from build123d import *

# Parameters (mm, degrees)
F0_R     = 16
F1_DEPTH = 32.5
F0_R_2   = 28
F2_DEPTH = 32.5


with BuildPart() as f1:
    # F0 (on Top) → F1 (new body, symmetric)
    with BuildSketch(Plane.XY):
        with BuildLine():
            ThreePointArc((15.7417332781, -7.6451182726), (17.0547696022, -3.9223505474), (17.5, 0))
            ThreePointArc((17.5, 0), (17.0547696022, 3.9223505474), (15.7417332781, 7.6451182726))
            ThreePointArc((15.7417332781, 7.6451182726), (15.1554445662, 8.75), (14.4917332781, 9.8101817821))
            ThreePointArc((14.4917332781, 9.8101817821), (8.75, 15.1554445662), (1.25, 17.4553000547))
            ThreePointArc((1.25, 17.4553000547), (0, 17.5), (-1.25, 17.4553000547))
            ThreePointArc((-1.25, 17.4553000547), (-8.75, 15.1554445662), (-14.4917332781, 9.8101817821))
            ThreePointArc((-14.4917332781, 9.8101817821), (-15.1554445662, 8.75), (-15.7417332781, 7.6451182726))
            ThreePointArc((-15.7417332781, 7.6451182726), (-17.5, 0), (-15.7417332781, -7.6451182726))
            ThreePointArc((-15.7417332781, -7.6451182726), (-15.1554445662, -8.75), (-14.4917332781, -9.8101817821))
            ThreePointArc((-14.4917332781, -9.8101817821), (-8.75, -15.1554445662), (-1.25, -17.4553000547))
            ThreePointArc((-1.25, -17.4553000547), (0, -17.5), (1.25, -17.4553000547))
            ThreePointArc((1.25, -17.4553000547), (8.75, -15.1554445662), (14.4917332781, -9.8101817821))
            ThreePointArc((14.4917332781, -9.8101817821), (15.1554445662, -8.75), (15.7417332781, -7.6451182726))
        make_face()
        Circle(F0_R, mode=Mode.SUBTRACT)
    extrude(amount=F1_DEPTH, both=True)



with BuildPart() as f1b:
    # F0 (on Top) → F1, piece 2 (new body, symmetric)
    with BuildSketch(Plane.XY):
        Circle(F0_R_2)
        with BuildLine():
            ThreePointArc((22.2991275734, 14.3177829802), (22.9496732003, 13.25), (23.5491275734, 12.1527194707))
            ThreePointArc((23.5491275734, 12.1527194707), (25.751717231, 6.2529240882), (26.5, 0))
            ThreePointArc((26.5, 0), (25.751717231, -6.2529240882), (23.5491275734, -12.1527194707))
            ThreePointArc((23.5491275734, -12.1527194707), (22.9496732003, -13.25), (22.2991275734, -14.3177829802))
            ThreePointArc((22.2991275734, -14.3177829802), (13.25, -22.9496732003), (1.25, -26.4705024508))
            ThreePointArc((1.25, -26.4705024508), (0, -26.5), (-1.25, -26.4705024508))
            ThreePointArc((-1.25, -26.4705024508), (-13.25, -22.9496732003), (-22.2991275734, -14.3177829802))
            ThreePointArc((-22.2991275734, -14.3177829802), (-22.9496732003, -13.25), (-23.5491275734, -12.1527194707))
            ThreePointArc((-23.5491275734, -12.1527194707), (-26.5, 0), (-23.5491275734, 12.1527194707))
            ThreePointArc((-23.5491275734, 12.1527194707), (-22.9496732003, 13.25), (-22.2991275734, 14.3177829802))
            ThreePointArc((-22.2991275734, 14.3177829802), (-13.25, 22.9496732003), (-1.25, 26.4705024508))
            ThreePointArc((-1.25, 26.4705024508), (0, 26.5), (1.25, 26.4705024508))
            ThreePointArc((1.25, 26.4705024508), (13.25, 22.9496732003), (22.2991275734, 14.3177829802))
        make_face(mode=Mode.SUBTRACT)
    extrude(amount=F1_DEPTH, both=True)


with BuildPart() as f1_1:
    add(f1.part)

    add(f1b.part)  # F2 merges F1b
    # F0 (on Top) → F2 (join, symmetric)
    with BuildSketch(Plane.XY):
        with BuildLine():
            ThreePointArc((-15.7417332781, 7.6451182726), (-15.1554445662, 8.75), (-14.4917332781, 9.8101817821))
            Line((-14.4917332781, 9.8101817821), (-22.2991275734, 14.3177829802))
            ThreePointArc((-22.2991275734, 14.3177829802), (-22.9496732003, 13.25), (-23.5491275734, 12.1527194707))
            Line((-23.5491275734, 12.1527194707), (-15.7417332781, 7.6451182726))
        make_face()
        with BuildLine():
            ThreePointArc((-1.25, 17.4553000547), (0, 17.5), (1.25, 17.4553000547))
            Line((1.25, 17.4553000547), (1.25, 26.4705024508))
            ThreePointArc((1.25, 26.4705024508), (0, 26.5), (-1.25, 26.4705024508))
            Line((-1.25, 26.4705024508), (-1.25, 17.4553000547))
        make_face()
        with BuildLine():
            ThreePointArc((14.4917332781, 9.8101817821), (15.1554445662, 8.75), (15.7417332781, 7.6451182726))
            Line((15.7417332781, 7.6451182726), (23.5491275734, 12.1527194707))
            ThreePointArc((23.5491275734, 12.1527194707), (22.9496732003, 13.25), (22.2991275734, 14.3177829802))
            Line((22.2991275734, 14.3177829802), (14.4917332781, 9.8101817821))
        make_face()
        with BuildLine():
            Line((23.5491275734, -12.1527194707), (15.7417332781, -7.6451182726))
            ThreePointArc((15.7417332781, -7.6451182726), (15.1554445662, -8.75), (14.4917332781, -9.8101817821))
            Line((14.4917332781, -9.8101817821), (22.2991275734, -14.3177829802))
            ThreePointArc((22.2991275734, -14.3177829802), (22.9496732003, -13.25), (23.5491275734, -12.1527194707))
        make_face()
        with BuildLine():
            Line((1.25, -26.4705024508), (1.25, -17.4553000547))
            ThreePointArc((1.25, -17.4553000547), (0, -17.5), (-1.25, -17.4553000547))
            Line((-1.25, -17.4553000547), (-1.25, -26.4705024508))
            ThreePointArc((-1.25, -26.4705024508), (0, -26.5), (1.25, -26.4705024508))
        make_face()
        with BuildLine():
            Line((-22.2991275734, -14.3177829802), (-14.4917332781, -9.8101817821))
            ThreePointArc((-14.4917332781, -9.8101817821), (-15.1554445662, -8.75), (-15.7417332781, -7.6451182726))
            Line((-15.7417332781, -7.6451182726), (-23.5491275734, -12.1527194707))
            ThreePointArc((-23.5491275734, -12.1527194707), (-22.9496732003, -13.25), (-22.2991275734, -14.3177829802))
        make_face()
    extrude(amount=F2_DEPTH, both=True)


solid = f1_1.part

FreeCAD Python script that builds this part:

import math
import FreeCAD as App
import Part
import Sketcher

V = App.Vector
Q = App.Units.Quantity

doc = App.newDocument("Part")
body = doc.addObject("PartDesign::Body", "Body")

# Sketch on XY plane
sketch1 = body.newObject("Sketcher::SketchObject", "Sketch")
sketch1.AttachmentSupport = (doc.getObject("XY_Plane"), [""])
sketch1.MapMode = "FlatFace"
sketch1.addGeometry(Part.ArcOfCircle(Part.Circle(V(0, 0, 0), V(0, 0, 1), 17.5), math.radians(-26), math.radians(0)), False)
sketch1.addGeometry(Part.ArcOfCircle(Part.Circle(V(0, 0, 0), V(0, 0, 1), 17.5), math.radians(0), math.radians(26)), False)
sketch1.addGeometry(Part.ArcOfCircle(Part.Circle(V(0, 0, 0), V(0, 0, 1), 17.5), math.radians(25.9), math.radians(34.1)), False)
sketch1.addGeometry(Part.ArcOfCircle(Part.Circle(V(0, 0, 0), V(0, 0, 1), 17.5), math.radians(34), math.radians(86)), False)
sketch1.addGeometry(Part.ArcOfCircle(Part.Circle(V(0, 0, 0), V(0, 0, 1), 17.5), math.radians(85.9), math.radians(94.1)), False)
sketch1.addGeometry(Part.ArcOfCircle(Part.Circle(V(0, 0, 0), V(0, 0, 1), 17.5), math.radians(94), math.radians(146)), False)
sketch1.addGeometry(Part.ArcOfCircle(Part.Circle(V(0, 0, 0), V(0, 0, 1), 17.5), math.radians(145.9), math.radians(154.1)), False)
sketch1.addGeometry(Part.ArcOfCircle(Part.Circle(V(0, 0, 0), V(0, 0, 1), 17.5), math.radians(154), math.radians(206)), False)
sketch1.addGeometry(Part.ArcOfCircle(Part.Circle(V(0, 0, 0), V(0, 0, 1), 17.5), math.radians(-154.1), math.radians(-145.9)), False)
sketch1.addGeometry(Part.ArcOfCircle(Part.Circle(V(0, 0, 0), V(0, 0, 1), 17.5), math.radians(-146), math.radians(-94)), False)
sketch1.addGeometry(Part.ArcOfCircle(Part.Circle(V(0, 0, 0), V(0, 0, 1), 17.5), math.radians(-94.1), math.radians(-85.9)), False)
sketch1.addGeometry(Part.ArcOfCircle(Part.Circle(V(0, 0, 0), V(0, 0, 1), 17.5), math.radians(-86), math.radians(-34)), False)
sketch1.addGeometry(Part.ArcOfCircle(Part.Circle(V(0, 0, 0), V(0, 0, 1), 17.5), math.radians(-34.1), math.radians(-25.9)), False)
sketch1.addGeometry(Part.Circle(V(0, 0, 0), V(0, 0, 1), 16), False)
sketch1.addConstraint(Sketcher.Constraint("Tangent", 0, 2, 1, 1))
sketch1.addConstraint(Sketcher.Constraint("Tangent", 1, 2, 2, 1))
sketch1.addConstraint(Sketcher.Constraint("Tangent", 2, 2, 3, 1))
sketch1.addConstraint(Sketcher.Constraint("Tangent", 3, 2, 4, 1))
sketch1.addConstraint(Sketcher.Constraint("Tangent", 4, 2, 5, 1))
sketch1.addConstraint(Sketcher.Constraint("Tangent", 5, 2, 6, 1))
sketch1.addConstraint(Sketcher.Constraint("Tangent", 6, 2, 7, 1))
sketch1.addConstraint(Sketcher.Constraint("Tangent", 7, 2, 8, 1))
sketch1.addConstraint(Sketcher.Constraint("Tangent", 8, 2, 9, 1))
sketch1.addConstraint(Sketcher.Constraint("Tangent", 9, 2, 10, 1))
sketch1.addConstraint(Sketcher.Constraint("Tangent", 10, 2, 11, 1))
sketch1.addConstraint(Sketcher.Constraint("Tangent", 11, 2, 12, 1))
sketch1.addConstraint(Sketcher.Constraint("Tangent", 12, 2, 0, 1))
sketch1.addConstraint(Sketcher.Constraint("Coincident", 0, 3, -1, 1))
sketch1.addConstraint(Sketcher.Constraint("Coincident", 2, 3, -1, 1))
sketch1.addConstraint(Sketcher.Constraint("Coincident", 4, 3, -1, 1))
sketch1.addConstraint(Sketcher.Constraint("Coincident", 6, 3, -1, 1))
sketch1.addConstraint(Sketcher.Constraint("Coincident", 8, 3, -1, 1))
sketch1.addConstraint(Sketcher.Constraint("Coincident", 10, 3, -1, 1))
sketch1.addConstraint(Sketcher.Constraint("Coincident", 13, 3, -1, 1))
sketch1.addConstraint(Sketcher.Constraint("PointOnObject", 0, 2, -1))
sketch1.addConstraint(Sketcher.Constraint("Horizontal", 3, 2, 4, 2))
sketch1.addConstraint(Sketcher.Constraint("Horizontal", 2, 2, 5, 2))
sketch1.addConstraint(Sketcher.Constraint("Horizontal", 1, 2, 6, 2))
sketch1.addConstraint(Sketcher.Constraint("Horizontal", 9, 2, 10, 2))
sketch1.addConstraint(Sketcher.Constraint("Horizontal", 8, 2, 11, 2))
sketch1.addConstraint(Sketcher.Constraint("Horizontal", 7, 2, 12, 2))
sketch1.addConstraint(Sketcher.Constraint("Vertical", 6, 2, 7, 2))
sketch1.addConstraint(Sketcher.Constraint("Vertical", 5, 2, 8, 2))
sketch1.addConstraint(Sketcher.Constraint("Vertical", 4, 2, 9, 2))
sketch1.addConstraint(Sketcher.Constraint("Diameter", 13, Q("32 mm")))
sketch1.addConstraint(Sketcher.Constraint("Radius", 0, Q("17.5 mm")))
sketch1.addConstraint(Sketcher.Constraint("DistanceX", 4, 2, 3, 2, Q("2.5 mm")))
sketch1.addConstraint(Sketcher.Constraint("DistanceX", 2, 2, 1, 2, Q("1.25 mm")))
sketch1.addConstraint(Sketcher.Constraint("DistanceY", -1, 1, 1, 2, Q("7.645118 mm")))
pad1 = body.newObject("PartDesign::Pad", "Pad")
pad1.Profile = sketch1
pad1.Length = 65
pad1.Midplane = True
body2 = doc.addObject("PartDesign::Body", "Body001")

# Sketch on XY plane
sketch2 = body2.newObject("Sketcher::SketchObject", "Sketch001")
sketch2.AttachmentSupport = (doc.getObject("XY_Plane001"), [""])
sketch2.MapMode = "FlatFace"
sketch2.addGeometry(Part.Circle(V(0, 0, 0), V(0, 0, 1), 28), False)
sketch2.addGeometry(Part.ArcOfCircle(Part.Circle(V(0, 0, 0), V(0, 0, 1), 26.5), math.radians(33), math.radians(87)), False)
sketch2.addGeometry(Part.ArcOfCircle(Part.Circle(V(0, 0, 0), V(0, 0, 1), 26.5), math.radians(27.3), math.radians(32.7)), False)
sketch2.addGeometry(Part.ArcOfCircle(Part.Circle(V(0, 0, 0), V(0, 0, 1), 26.5), math.radians(0), math.radians(27)), False)
sketch2.addGeometry(Part.ArcOfCircle(Part.Circle(V(0, 0, 0), V(0, 0, 1), 26.5), math.radians(-27), math.radians(0)), False)
sketch2.addGeometry(Part.ArcOfCircle(Part.Circle(V(0, 0, 0), V(0, 0, 1), 26.5), math.radians(-32.7), math.radians(-27.3)), False)
sketch2.addGeometry(Part.ArcOfCircle(Part.Circle(V(0, 0, 0), V(0, 0, 1), 26.5), math.radians(-87), math.radians(-33)), False)
sketch2.addGeometry(Part.ArcOfCircle(Part.Circle(V(0, 0, 0), V(0, 0, 1), 26.5), math.radians(-92.7), math.radians(-87.3)), False)
sketch2.addGeometry(Part.ArcOfCircle(Part.Circle(V(0, 0, 0), V(0, 0, 1), 26.5), math.radians(-147), math.radians(-93)), False)
sketch2.addGeometry(Part.ArcOfCircle(Part.Circle(V(0, 0, 0), V(0, 0, 1), 26.5), math.radians(-152.7), math.radians(-147.3)), False)
sketch2.addGeometry(Part.ArcOfCircle(Part.Circle(V(0, 0, 0), V(0, 0, 1), 26.5), math.radians(153), math.radians(207)), False)
sketch2.addGeometry(Part.ArcOfCircle(Part.Circle(V(0, 0, 0), V(0, 0, 1), 26.5), math.radians(147.3), math.radians(152.7)), False)
sketch2.addGeometry(Part.ArcOfCircle(Part.Circle(V(0, 0, 0), V(0, 0, 1), 26.5), math.radians(93), math.radians(147)), False)
sketch2.addGeometry(Part.ArcOfCircle(Part.Circle(V(0, 0, 0), V(0, 0, 1), 26.5), math.radians(87.3), math.radians(92.7)), False)
sketch2.addConstraint(Sketcher.Constraint("Tangent", 1, 1, 2, 2))
sketch2.addConstraint(Sketcher.Constraint("Tangent", 2, 1, 3, 2))
sketch2.addConstraint(Sketcher.Constraint("Tangent", 3, 1, 4, 2))
sketch2.addConstraint(Sketcher.Constraint("Tangent", 4, 1, 5, 2))
sketch2.addConstraint(Sketcher.Constraint("Tangent", 5, 1, 6, 2))
sketch2.addConstraint(Sketcher.Constraint("Tangent", 6, 1, 7, 2))
sketch2.addConstraint(Sketcher.Constraint("Tangent", 7, 1, 8, 2))
sketch2.addConstraint(Sketcher.Constraint("Tangent", 8, 1, 9, 2))
sketch2.addConstraint(Sketcher.Constraint("Tangent", 9, 1, 10, 2))
sketch2.addConstraint(Sketcher.Constraint("Tangent", 10, 1, 11, 2))
sketch2.addConstraint(Sketcher.Constraint("Tangent", 11, 1, 12, 2))
sketch2.addConstraint(Sketcher.Constraint("Tangent", 12, 1, 13, 2))
sketch2.addConstraint(Sketcher.Constraint("Tangent", 13, 1, 1, 2))
sketch2.addConstraint(Sketcher.Constraint("Coincident", 0, 3, -1, 1))
sketch2.addConstraint(Sketcher.Constraint("Coincident", 1, 3, -1, 1))
sketch2.addConstraint(Sketcher.Constraint("Coincident", 3, 3, -1, 1))
sketch2.addConstraint(Sketcher.Constraint("Coincident", 5, 3, -1, 1))
sketch2.addConstraint(Sketcher.Constraint("Coincident", 7, 3, -1, 1))
sketch2.addConstraint(Sketcher.Constraint("Coincident", 9, 3, -1, 1))
sketch2.addConstraint(Sketcher.Constraint("Coincident", 11, 3, -1, 1))
sketch2.addConstraint(Sketcher.Constraint("PointOnObject", 3, 1, -1))
sketch2.addConstraint(Sketcher.Constraint("Horizontal", 6, 1, 7, 1))
sketch2.addConstraint(Sketcher.Constraint("Horizontal", 5, 1, 8, 1))
sketch2.addConstraint(Sketcher.Constraint("Horizontal", 4, 1, 9, 1))
sketch2.addConstraint(Sketcher.Constraint("Horizontal", 2, 1, 10, 1))
sketch2.addConstraint(Sketcher.Constraint("Horizontal", 1, 1, 11, 1))
sketch2.addConstraint(Sketcher.Constraint("Horizontal", 12, 1, 13, 1))
sketch2.addConstraint(Sketcher.Constraint("Vertical", 2, 1, 4, 1))
sketch2.addConstraint(Sketcher.Constraint("Vertical", 1, 1, 5, 1))
sketch2.addConstraint(Sketcher.Constraint("Vertical", 7, 1, 12, 1))
sketch2.addConstraint(Sketcher.Constraint("Diameter", 0, Q("56 mm")))
sketch2.addConstraint(Sketcher.Constraint("Radius", 1, Q("26.5 mm")))
sketch2.addConstraint(Sketcher.Constraint("DistanceX", 7, 1, 6, 1, Q("2.5 mm")))
sketch2.addConstraint(Sketcher.Constraint("DistanceX", 1, 1, 2, 1, Q("1.25 mm")))
sketch2.addConstraint(Sketcher.Constraint("DistanceY", -1, 1, 2, 1, Q("12.152719 mm")))
pad2 = body2.newObject("PartDesign::Pad", "Pad001")
pad2.Profile = sketch2
pad2.Length = 65
pad2.Midplane = True
body.AllowCompound = True
doc.recompute()

boolean = body.newObject("PartDesign::Boolean", "Boolean")
boolean.Type = "Fuse"
boolean.addObjects([body2])

# Sketch on XY plane
sketch3 = body.newObject("Sketcher::SketchObject", "Sketch002")
sketch3.AttachmentSupport = (doc.getObject("XY_Plane"), [""])
sketch3.MapMode = "FlatFace"
sketch3.addGeometry(Part.ArcOfCircle(Part.Circle(V(0, 0, 0), V(0, 0, 1), 17.5), math.radians(145.9), math.radians(154.1)), False)
sketch3.addGeometry(Part.LineSegment(V(-14.5, 9.8, 0), V(-22.3, 14.3, 0)), False)
sketch3.addGeometry(Part.ArcOfCircle(Part.Circle(V(0, 0, 0), V(0, 0, 1), 26.5), math.radians(147.3), math.radians(152.7)), False)
sketch3.addGeometry(Part.LineSegment(V(-23.5, 12.2, 0), V(-15.7, 7.6, 0)), False)
sketch3.addGeometry(Part.ArcOfCircle(Part.Circle(V(0, 0, 0), V(0, 0, 1), 17.5), math.radians(85.9), math.radians(94.1)), False)
sketch3.addGeometry(Part.LineSegment(V(1.2, 17.5, 0), V(1.2, 26.5, 0)), False)
sketch3.addGeometry(Part.ArcOfCircle(Part.Circle(V(0, 0, 0), V(0, 0, 1), 26.5), math.radians(87.3), math.radians(92.7)), False)
sketch3.addGeometry(Part.LineSegment(V(-1.2, 26.5, 0), V(-1.2, 17.5, 0)), False)
sketch3.addGeometry(Part.ArcOfCircle(Part.Circle(V(0, 0, 0), V(0, 0, 1), 17.5), math.radians(25.9), math.radians(34.1)), False)
sketch3.addGeometry(Part.LineSegment(V(15.7, 7.6, 0), V(23.5, 12.2, 0)), False)
sketch3.addGeometry(Part.ArcOfCircle(Part.Circle(V(0, 0, 0), V(0, 0, 1), 26.5), math.radians(27.3), math.radians(32.7)), False)
sketch3.addGeometry(Part.LineSegment(V(22.3, 14.3, 0), V(14.5, 9.8, 0)), False)
sketch3.addGeometry(Part.LineSegment(V(23.5, -12.2, 0), V(15.7, -7.6, 0)), False)
sketch3.addGeometry(Part.ArcOfCircle(Part.Circle(V(0, 0, 0), V(0, 0, 1), 17.5), math.radians(-34.1), math.radians(-25.9)), False)
sketch3.addGeometry(Part.LineSegment(V(14.5, -9.8, 0), V(22.3, -14.3, 0)), False)
sketch3.addGeometry(Part.ArcOfCircle(Part.Circle(V(0, 0, 0), V(0, 0, 1), 26.5), math.radians(-32.7), math.radians(-27.3)), False)
sketch3.addGeometry(Part.LineSegment(V(1.2, -26.5, 0), V(1.2, -17.5, 0)), False)
sketch3.addGeometry(Part.ArcOfCircle(Part.Circle(V(0, 0, 0), V(0, 0, 1), 17.5), math.radians(-94.1), math.radians(-85.9)), False)
sketch3.addGeometry(Part.LineSegment(V(-1.2, -17.5, 0), V(-1.2, -26.5, 0)), False)
sketch3.addGeometry(Part.ArcOfCircle(Part.Circle(V(0, 0, 0), V(0, 0, 1), 26.5), math.radians(-92.7), math.radians(-87.3)), False)
sketch3.addGeometry(Part.LineSegment(V(-22.3, -14.3, 0), V(-14.5, -9.8, 0)), False)
sketch3.addGeometry(Part.ArcOfCircle(Part.Circle(V(0, 0, 0), V(0, 0, 1), 17.5), math.radians(-154.1), math.radians(-145.9)), False)
sketch3.addGeometry(Part.LineSegment(V(-15.7, -7.6, 0), V(-23.5, -12.2, 0)), False)
sketch3.addGeometry(Part.ArcOfCircle(Part.Circle(V(0, 0, 0), V(0, 0, 1), 26.5), math.radians(-152.7), math.radians(-147.3)), False)
sketch3.addConstraint(Sketcher.Constraint("Coincident", 0, 1, 1, 1))
sketch3.addConstraint(Sketcher.Constraint("Coincident", 1, 2, 2, 1))
sketch3.addConstraint(Sketcher.Constraint("Coincident", 2, 2, 3, 1))
sketch3.addConstraint(Sketcher.Constraint("Coincident", 3, 2, 0, 2))
sketch3.addConstraint(Sketcher.Constraint("Coincident", 4, 1, 5, 1))
sketch3.addConstraint(Sketcher.Constraint("Coincident", 5, 2, 6, 1))
sketch3.addConstraint(Sketcher.Constraint("Coincident", 6, 2, 7, 1))
sketch3.addConstraint(Sketcher.Constraint("Coincident", 7, 2, 4, 2))
sketch3.addConstraint(Sketcher.Constraint("Coincident", 8, 1, 9, 1))
sketch3.addConstraint(Sketcher.Constraint("Coincident", 9, 2, 10, 1))
sketch3.addConstraint(Sketcher.Constraint("Coincident", 10, 2, 11, 1))
sketch3.addConstraint(Sketcher.Constraint("Coincident", 11, 2, 8, 2))
sketch3.addConstraint(Sketcher.Constraint("Coincident", 12, 2, 13, 2))
sketch3.addConstraint(Sketcher.Constraint("Coincident", 13, 1, 14, 1))
sketch3.addConstraint(Sketcher.Constraint("Coincident", 14, 2, 15, 1))
sketch3.addConstraint(Sketcher.Constraint("Coincident", 15, 2, 12, 1))
sketch3.addConstraint(Sketcher.Constraint("Coincident", 16, 2, 17, 2))
sketch3.addConstraint(Sketcher.Constraint("Coincident", 17, 1, 18, 1))
sketch3.addConstraint(Sketcher.Constraint("Coincident", 18, 2, 19, 1))
sketch3.addConstraint(Sketcher.Constraint("Coincident", 19, 2, 16, 1))
sketch3.addConstraint(Sketcher.Constraint("Coincident", 20, 2, 21, 2))
sketch3.addConstraint(Sketcher.Constraint("Coincident", 21, 1, 22, 1))
sketch3.addConstraint(Sketcher.Constraint("Coincident", 22, 2, 23, 1))
sketch3.addConstraint(Sketcher.Constraint("Coincident", 23, 2, 20, 1))
sketch3.addConstraint(Sketcher.Constraint("Vertical", 5))
sketch3.addConstraint(Sketcher.Constraint("Vertical", 7))
sketch3.addConstraint(Sketcher.Constraint("Vertical", 16))
sketch3.addConstraint(Sketcher.Constraint("Vertical", 18))
sketch3.addConstraint(Sketcher.Constraint("Coincident", 0, 3, -1, 1))
sketch3.addConstraint(Sketcher.Constraint("Coincident", 2, 3, -1, 1))
sketch3.addConstraint(Sketcher.Constraint("Coincident", 4, 3, -1, 1))
sketch3.addConstraint(Sketcher.Constraint("Coincident", 6, 3, -1, 1))
sketch3.addConstraint(Sketcher.Constraint("Coincident", 8, 3, -1, 1))
sketch3.addConstraint(Sketcher.Constraint("Coincident", 10, 3, -1, 1))
sketch3.addConstraint(Sketcher.Constraint("Coincident", 13, 3, -1, 1))
sketch3.addConstraint(Sketcher.Constraint("Coincident", 15, 3, -1, 1))
sketch3.addConstraint(Sketcher.Constraint("Coincident", 17, 3, -1, 1))
sketch3.addConstraint(Sketcher.Constraint("Coincident", 19, 3, -1, 1))
sketch3.addConstraint(Sketcher.Constraint("Coincident", 21, 3, -1, 1))
sketch3.addConstraint(Sketcher.Constraint("Coincident", 23, 3, -1, 1))
sketch3.addConstraint(Sketcher.Constraint("Equal", 0, 4))
sketch3.addConstraint(Sketcher.Constraint("Equal", 2, 6))
sketch3.addConstraint(Sketcher.Constraint("Equal", 4, 8))
sketch3.addConstraint(Sketcher.Constraint("Equal", 6, 10))
sketch3.addConstraint(Sketcher.Constraint("Equal", 8, 13))
sketch3.addConstraint(Sketcher.Constraint("Equal", 10, 15))
sketch3.addConstraint(Sketcher.Constraint("Equal", 13, 17))
sketch3.addConstraint(Sketcher.Constraint("Equal", 15, 19))
sketch3.addConstraint(Sketcher.Constraint("Equal", 17, 21))
sketch3.addConstraint(Sketcher.Constraint("Equal", 19, 23))
sketch3.addConstraint(Sketcher.Constraint("Parallel", 1, 3))
sketch3.addConstraint(Sketcher.Constraint("Parallel", 9, 11))
sketch3.addConstraint(Sketcher.Constraint("Parallel", 3, 12))
sketch3.addConstraint(Sketcher.Constraint("Parallel", 12, 14))
sketch3.addConstraint(Sketcher.Constraint("Parallel", 11, 20))
sketch3.addConstraint(Sketcher.Constraint("Parallel", 20, 22))
sketch3.addConstraint(Sketcher.Constraint("Horizontal", 5, 2, 6, 2))
sketch3.addConstraint(Sketcher.Constraint("Horizontal", 3, 2, 8, 1))
sketch3.addConstraint(Sketcher.Constraint("Horizontal", 2, 2, 9, 2))
sketch3.addConstraint(Sketcher.Constraint("Horizontal", 1, 2, 10, 2))
sketch3.addConstraint(Sketcher.Constraint("Horizontal", 16, 2, 17, 1))
sketch3.addConstraint(Sketcher.Constraint("Horizontal", 13, 1, 20, 2))
sketch3.addConstraint(Sketcher.Constraint("Horizontal", 12, 2, 21, 1))
sketch3.addConstraint(Sketcher.Constraint("Vertical", 8, 1, 12, 2))
sketch3.addConstraint(Sketcher.Constraint("Vertical", 11, 2, 13, 1))
sketch3.addConstraint(Sketcher.Constraint("Vertical", 5, 2, 16, 2))
sketch3.addConstraint(Sketcher.Constraint("Equal", 1, 3))
sketch3.addConstraint(Sketcher.Constraint("Radius", 0, Q("17.5 mm")))
sketch3.addConstraint(Sketcher.Constraint("Radius", 2, Q("26.5 mm")))
sketch3.addConstraint(Sketcher.Constraint("Angle", 1, Q("150 deg")))
sketch3.addConstraint(Sketcher.Constraint("DistanceX", 6, 2, 5, 2, Q("2.5 mm")))
sketch3.addConstraint(Sketcher.Constraint("DistanceX", 2, 2, 1, 2, Q("1.25 mm")))
pad3 = body.newObject("PartDesign::Pad", "Pad002")
pad3.Profile = sketch3
pad3.Length = 65
pad3.Midplane = True

doc.recompute()
